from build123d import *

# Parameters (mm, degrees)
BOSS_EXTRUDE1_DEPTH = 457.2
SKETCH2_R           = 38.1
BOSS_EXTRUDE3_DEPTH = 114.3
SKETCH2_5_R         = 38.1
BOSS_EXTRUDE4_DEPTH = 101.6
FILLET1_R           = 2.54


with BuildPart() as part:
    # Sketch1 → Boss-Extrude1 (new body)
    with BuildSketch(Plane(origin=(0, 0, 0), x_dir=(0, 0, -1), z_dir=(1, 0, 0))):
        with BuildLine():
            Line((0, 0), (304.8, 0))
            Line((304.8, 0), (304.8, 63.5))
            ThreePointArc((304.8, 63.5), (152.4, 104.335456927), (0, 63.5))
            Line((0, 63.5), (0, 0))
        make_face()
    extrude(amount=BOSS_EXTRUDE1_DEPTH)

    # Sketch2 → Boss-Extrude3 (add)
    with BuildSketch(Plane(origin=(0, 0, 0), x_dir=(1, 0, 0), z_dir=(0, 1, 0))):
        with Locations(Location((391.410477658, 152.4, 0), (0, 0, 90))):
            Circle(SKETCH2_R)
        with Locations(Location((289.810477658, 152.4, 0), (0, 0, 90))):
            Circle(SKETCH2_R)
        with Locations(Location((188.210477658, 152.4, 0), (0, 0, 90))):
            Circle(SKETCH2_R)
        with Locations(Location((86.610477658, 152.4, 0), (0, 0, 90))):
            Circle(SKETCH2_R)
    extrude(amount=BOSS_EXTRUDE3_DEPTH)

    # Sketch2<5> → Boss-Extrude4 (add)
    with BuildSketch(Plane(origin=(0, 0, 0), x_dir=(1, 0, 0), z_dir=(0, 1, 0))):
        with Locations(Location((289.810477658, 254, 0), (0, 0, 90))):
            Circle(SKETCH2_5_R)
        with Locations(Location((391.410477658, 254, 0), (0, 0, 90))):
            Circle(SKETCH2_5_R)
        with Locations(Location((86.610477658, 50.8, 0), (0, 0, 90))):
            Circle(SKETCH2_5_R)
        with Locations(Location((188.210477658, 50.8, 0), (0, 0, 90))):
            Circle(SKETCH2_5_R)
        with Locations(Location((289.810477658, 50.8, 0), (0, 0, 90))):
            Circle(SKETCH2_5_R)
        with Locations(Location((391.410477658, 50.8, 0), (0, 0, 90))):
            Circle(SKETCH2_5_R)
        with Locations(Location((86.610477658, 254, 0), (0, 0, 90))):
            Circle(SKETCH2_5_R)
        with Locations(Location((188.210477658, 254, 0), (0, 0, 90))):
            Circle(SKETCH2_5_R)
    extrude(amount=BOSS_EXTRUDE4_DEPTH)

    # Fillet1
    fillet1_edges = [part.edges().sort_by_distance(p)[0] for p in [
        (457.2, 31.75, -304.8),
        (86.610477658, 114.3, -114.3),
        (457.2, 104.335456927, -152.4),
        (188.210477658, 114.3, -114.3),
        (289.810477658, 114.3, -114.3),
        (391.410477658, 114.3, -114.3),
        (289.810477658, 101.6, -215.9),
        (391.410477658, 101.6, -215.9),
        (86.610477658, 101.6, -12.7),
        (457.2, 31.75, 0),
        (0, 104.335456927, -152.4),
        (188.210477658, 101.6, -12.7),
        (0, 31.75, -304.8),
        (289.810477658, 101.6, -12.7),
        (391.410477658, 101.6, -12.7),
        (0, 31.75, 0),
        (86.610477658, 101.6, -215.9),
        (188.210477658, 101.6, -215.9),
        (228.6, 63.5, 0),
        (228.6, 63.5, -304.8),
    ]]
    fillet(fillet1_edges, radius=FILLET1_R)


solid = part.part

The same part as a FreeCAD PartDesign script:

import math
import FreeCAD as App
import Part
import Sketcher
from FreeCAD import Vector
Q = App.Units.Quantity


def edges_at(feature, points):
    """Names of the edges that pass closest to the given points."""
    edges = feature.Shape.Edges
    near = lambda p: min(range(len(edges)), key=lambda i: edges[i].distToShape(Part.Vertex(*p))[0])
    return sorted({f"Edge{near(p) + 1}" for p in points})

doc = App.newDocument("Part")
body = doc.addObject("PartDesign::Body", "Body")

# Sketch on YZ plane
sketch1 = doc.addObject("Sketcher::SketchObject", "Sketch")
body.addObject(sketch1)
sketch1.AttachmentSupport = (doc.YZ_Plane, [""])
sketch1.MapMode = "FlatFace"
sketch1.addGeometry([
    Part.LineSegment(Vector(0, 0, 0), Vector(0, -305, 0)),
    Part.LineSegment(Vector(0, -305, 0), Vector(64, -305, 0)),
    Part.ArcOfCircle(Part.Circle(Vector(-200, -152, 0), Vector(0, 0, 1), 305), math.radians(-30), math.radians(30)),
    Part.LineSegment(Vector(64, 0, 0), Vector(0, 0, 0)),
], False)
sketch1.addConstraint([
    Sketcher.Constraint("Coincident", 0, 2, 1, 1),
    Sketcher.Constraint("Coincident", 1, 2, 2, 1),
    Sketcher.Constraint("Coincident", 2, 2, 3, 1),
    Sketcher.Constraint("Coincident", 3, 2, 0, 1),
    Sketcher.Constraint("Vertical", 0),
    Sketcher.Constraint("Horizontal", 1),
    Sketcher.Constraint("Horizontal", 3),
    Sketcher.Constraint("Coincident", 3, 2, -1, 1),
    Sketcher.Constraint("Vertical", 1, 2, 2, 2),
    Sketcher.Constraint("Radius", 2, Q("12 in")),
    Sketcher.Constraint("DistanceY", 0, 2, 0, 1, Q("12 in")),
    Sketcher.Constraint("DistanceX", 1, 1, 1, 2, Q("2.5 in")),
])
pad1 = doc.addObject("PartDesign::Pad", "Pad")
body.addObject(pad1)
pad1.Profile = sketch1
pad1.Length = Q("18 in")

# Sketch on XZ plane
sketch2 = doc.addObject("Sketcher::SketchObject", "Sketch001")
body.addObject(sketch2)
sketch2.AttachmentSupport = (doc.XZ_Plane, [""])
sketch2.MapMode = "FlatFace"
sketch2.addGeometry([
    Part.Circle(Vector(391, -152, 0), Vector(0, 0, 1), 38),
    Part.Circle(Vector(290, -152, 0), Vector(0, 0, 1), 38),
    Part.Circle(Vector(188, -152, 0), Vector(0, 0, 1), 38),
    Part.Circle(Vector(87, -152, 0), Vector(0, 0, 1), 38),
], False)
sketch2.addConstraint([
    Sketcher.Constraint("Equal", 0, 1),
    Sketcher.Constraint("Equal", 1, 2),
    Sketcher.Constraint("Equal", 2, 3),
    Sketcher.Constraint("Horizontal", 0, 3, 1, 3),
    Sketcher.Constraint("Horizontal", 1, 3, 2, 3),
    Sketcher.Constraint("Horizontal", 2, 3, 3, 3),
    Sketcher.Constraint("Diameter", 0, Q("3 in")),
    Sketcher.Constraint("DistanceY", 0, 3, -1, 1, Q("6 in")),
    Sketcher.Constraint("DistanceX", 1, 3, 0, 3, Q("4 in")),
    Sketcher.Constraint("DistanceX", 2, 3, 1, 3, Q("4 in")),
    Sketcher.Constraint("DistanceX", 3, 3, 2, 3, Q("4 in")),
    Sketcher.Constraint("DistanceX", -1, 1, 0, 3, Q("391.410478 mm")),
])
pad2 = doc.addObject("PartDesign::Pad", "Pad001")
body.addObject(pad2)
pad2.Profile = sketch2
pad2.Length = Q("4.5 in")
pad2.Reversed = True

# Sketch on XZ plane
sketch3 = doc.addObject("Sketcher::SketchObject", "Sketch002")
body.addObject(sketch3)
sketch3.AttachmentSupport = (doc.XZ_Plane, [""])
sketch3.MapMode = "FlatFace"
sketch3.addGeometry([
    Part.Circle(Vector(290, -254, 0), Vector(0, 0, 1), 38),  # 0
    Part.Circle(Vector(391, -254, 0), Vector(0, 0, 1), 38),  # 1
    Part.Circle(Vector(87, -51, 0), Vector(0, 0, 1), 38),  # 2
    Part.Circle(Vector(188, -51, 0), Vector(0, 0, 1), 38),  # 3
    Part.Circle(Vector(290, -51, 0), Vector(0, 0, 1), 38),  # 4
    Part.Circle(Vector(391, -51, 0), Vector(0, 0, 1), 38),  # 5
    Part.Circle(Vector(87, -254, 0), Vector(0, 0, 1), 38),  # 6
    Part.Circle(Vector(188, -254, 0), Vector(0, 0, 1), 38),  # 7
], False)
sketch3.addConstraint([
    Sketcher.Constraint("Equal", 0, 1),
    Sketcher.Constraint("Equal", 1, 2),
    Sketcher.Constraint("Equal", 2, 3),
    Sketcher.Constraint("Equal", 3, 4),
    Sketcher.Constraint("Equal", 4, 5),
    Sketcher.Constraint("Equal", 5, 6),
    Sketcher.Constraint("Equal", 6, 7),
    Sketcher.Constraint("Horizontal", 0, 3, 1, 3),
    Sketcher.Constraint("Horizontal", 2, 3, 3, 3),
    Sketcher.Constraint("Horizontal", 3, 3, 4, 3),
    Sketcher.Constraint("Horizontal", 4, 3, 5, 3),
    Sketcher.Constraint("Horizontal", 1, 3, 6, 3),
    Sketcher.Constraint("Horizontal", 6, 3, 7, 3),
    Sketcher.Constraint("Vertical", 0, 3, 4, 3),
    Sketcher.Constraint("Vertical", 1, 3, 5, 3),
    Sketcher.Constraint("Vertical", 2, 3, 6, 3),
    Sketcher.Constraint("Vertical", 3, 3, 7, 3),
    Sketcher.Constraint("Diameter", 0, Q("3 in")),
    Sketcher.Constraint("DistanceY", 0, 3, -1, 1, Q("10 in")),
    Sketcher.Constraint("DistanceY", 2, 3, -1, 1, Q("2 in")),
    Sketcher.Constraint("DistanceX", 0, 3, 1, 3, Q("4 in")),
    Sketcher.Constraint("DistanceX", 2, 3, 0, 3, Q("8 in")),
    Sketcher.Constraint("DistanceX", 2, 3, 3, 3, Q("4 in")),
    Sketcher.Constraint("DistanceX", -1, 1, 0, 3, Q("289.810478 mm")),
])
pad3 = doc.addObject("PartDesign::Pad", "Pad002")
body.addObject(pad3)
pad3.Profile = sketch3
pad3.Length = Q("4 in")
pad3.Reversed = True
doc.recompute()

fillet = doc.addObject("PartDesign::Fillet", "Fillet")
body.addObject(fillet)
fillet.Base = (pad3, edges_at(pad3, [
    (457.2, 31.75, -304.8),
    (86.61, 114.3, -114.3),
    (457.2, 104.335, -152.4),
    (188.21, 114.3, -114.3),
    (289.81, 114.3, -114.3),
    (391.41, 114.3, -114.3),
    (289.81, 101.6, -215.9),
    (391.41, 101.6, -215.9),
    (86.61, 101.6, -12.7),
    (457.2, 31.75, 0),
    (0, 104.335, -152.4),
    (188.21, 101.6, -12.7),
    (0, 31.75, -304.8),
    (289.81, 101.6, -12.7),
    (391.41, 101.6, -12.7),
    (0, 31.75, 0),
    (86.61, 101.6, -215.9),
    (188.21, 101.6, -215.9),
    (228.6, 63.5, 0),
    (228.6, 63.5, -304.8),
]))
fillet.Radius = Q("0.1 in")

doc.recompute()
